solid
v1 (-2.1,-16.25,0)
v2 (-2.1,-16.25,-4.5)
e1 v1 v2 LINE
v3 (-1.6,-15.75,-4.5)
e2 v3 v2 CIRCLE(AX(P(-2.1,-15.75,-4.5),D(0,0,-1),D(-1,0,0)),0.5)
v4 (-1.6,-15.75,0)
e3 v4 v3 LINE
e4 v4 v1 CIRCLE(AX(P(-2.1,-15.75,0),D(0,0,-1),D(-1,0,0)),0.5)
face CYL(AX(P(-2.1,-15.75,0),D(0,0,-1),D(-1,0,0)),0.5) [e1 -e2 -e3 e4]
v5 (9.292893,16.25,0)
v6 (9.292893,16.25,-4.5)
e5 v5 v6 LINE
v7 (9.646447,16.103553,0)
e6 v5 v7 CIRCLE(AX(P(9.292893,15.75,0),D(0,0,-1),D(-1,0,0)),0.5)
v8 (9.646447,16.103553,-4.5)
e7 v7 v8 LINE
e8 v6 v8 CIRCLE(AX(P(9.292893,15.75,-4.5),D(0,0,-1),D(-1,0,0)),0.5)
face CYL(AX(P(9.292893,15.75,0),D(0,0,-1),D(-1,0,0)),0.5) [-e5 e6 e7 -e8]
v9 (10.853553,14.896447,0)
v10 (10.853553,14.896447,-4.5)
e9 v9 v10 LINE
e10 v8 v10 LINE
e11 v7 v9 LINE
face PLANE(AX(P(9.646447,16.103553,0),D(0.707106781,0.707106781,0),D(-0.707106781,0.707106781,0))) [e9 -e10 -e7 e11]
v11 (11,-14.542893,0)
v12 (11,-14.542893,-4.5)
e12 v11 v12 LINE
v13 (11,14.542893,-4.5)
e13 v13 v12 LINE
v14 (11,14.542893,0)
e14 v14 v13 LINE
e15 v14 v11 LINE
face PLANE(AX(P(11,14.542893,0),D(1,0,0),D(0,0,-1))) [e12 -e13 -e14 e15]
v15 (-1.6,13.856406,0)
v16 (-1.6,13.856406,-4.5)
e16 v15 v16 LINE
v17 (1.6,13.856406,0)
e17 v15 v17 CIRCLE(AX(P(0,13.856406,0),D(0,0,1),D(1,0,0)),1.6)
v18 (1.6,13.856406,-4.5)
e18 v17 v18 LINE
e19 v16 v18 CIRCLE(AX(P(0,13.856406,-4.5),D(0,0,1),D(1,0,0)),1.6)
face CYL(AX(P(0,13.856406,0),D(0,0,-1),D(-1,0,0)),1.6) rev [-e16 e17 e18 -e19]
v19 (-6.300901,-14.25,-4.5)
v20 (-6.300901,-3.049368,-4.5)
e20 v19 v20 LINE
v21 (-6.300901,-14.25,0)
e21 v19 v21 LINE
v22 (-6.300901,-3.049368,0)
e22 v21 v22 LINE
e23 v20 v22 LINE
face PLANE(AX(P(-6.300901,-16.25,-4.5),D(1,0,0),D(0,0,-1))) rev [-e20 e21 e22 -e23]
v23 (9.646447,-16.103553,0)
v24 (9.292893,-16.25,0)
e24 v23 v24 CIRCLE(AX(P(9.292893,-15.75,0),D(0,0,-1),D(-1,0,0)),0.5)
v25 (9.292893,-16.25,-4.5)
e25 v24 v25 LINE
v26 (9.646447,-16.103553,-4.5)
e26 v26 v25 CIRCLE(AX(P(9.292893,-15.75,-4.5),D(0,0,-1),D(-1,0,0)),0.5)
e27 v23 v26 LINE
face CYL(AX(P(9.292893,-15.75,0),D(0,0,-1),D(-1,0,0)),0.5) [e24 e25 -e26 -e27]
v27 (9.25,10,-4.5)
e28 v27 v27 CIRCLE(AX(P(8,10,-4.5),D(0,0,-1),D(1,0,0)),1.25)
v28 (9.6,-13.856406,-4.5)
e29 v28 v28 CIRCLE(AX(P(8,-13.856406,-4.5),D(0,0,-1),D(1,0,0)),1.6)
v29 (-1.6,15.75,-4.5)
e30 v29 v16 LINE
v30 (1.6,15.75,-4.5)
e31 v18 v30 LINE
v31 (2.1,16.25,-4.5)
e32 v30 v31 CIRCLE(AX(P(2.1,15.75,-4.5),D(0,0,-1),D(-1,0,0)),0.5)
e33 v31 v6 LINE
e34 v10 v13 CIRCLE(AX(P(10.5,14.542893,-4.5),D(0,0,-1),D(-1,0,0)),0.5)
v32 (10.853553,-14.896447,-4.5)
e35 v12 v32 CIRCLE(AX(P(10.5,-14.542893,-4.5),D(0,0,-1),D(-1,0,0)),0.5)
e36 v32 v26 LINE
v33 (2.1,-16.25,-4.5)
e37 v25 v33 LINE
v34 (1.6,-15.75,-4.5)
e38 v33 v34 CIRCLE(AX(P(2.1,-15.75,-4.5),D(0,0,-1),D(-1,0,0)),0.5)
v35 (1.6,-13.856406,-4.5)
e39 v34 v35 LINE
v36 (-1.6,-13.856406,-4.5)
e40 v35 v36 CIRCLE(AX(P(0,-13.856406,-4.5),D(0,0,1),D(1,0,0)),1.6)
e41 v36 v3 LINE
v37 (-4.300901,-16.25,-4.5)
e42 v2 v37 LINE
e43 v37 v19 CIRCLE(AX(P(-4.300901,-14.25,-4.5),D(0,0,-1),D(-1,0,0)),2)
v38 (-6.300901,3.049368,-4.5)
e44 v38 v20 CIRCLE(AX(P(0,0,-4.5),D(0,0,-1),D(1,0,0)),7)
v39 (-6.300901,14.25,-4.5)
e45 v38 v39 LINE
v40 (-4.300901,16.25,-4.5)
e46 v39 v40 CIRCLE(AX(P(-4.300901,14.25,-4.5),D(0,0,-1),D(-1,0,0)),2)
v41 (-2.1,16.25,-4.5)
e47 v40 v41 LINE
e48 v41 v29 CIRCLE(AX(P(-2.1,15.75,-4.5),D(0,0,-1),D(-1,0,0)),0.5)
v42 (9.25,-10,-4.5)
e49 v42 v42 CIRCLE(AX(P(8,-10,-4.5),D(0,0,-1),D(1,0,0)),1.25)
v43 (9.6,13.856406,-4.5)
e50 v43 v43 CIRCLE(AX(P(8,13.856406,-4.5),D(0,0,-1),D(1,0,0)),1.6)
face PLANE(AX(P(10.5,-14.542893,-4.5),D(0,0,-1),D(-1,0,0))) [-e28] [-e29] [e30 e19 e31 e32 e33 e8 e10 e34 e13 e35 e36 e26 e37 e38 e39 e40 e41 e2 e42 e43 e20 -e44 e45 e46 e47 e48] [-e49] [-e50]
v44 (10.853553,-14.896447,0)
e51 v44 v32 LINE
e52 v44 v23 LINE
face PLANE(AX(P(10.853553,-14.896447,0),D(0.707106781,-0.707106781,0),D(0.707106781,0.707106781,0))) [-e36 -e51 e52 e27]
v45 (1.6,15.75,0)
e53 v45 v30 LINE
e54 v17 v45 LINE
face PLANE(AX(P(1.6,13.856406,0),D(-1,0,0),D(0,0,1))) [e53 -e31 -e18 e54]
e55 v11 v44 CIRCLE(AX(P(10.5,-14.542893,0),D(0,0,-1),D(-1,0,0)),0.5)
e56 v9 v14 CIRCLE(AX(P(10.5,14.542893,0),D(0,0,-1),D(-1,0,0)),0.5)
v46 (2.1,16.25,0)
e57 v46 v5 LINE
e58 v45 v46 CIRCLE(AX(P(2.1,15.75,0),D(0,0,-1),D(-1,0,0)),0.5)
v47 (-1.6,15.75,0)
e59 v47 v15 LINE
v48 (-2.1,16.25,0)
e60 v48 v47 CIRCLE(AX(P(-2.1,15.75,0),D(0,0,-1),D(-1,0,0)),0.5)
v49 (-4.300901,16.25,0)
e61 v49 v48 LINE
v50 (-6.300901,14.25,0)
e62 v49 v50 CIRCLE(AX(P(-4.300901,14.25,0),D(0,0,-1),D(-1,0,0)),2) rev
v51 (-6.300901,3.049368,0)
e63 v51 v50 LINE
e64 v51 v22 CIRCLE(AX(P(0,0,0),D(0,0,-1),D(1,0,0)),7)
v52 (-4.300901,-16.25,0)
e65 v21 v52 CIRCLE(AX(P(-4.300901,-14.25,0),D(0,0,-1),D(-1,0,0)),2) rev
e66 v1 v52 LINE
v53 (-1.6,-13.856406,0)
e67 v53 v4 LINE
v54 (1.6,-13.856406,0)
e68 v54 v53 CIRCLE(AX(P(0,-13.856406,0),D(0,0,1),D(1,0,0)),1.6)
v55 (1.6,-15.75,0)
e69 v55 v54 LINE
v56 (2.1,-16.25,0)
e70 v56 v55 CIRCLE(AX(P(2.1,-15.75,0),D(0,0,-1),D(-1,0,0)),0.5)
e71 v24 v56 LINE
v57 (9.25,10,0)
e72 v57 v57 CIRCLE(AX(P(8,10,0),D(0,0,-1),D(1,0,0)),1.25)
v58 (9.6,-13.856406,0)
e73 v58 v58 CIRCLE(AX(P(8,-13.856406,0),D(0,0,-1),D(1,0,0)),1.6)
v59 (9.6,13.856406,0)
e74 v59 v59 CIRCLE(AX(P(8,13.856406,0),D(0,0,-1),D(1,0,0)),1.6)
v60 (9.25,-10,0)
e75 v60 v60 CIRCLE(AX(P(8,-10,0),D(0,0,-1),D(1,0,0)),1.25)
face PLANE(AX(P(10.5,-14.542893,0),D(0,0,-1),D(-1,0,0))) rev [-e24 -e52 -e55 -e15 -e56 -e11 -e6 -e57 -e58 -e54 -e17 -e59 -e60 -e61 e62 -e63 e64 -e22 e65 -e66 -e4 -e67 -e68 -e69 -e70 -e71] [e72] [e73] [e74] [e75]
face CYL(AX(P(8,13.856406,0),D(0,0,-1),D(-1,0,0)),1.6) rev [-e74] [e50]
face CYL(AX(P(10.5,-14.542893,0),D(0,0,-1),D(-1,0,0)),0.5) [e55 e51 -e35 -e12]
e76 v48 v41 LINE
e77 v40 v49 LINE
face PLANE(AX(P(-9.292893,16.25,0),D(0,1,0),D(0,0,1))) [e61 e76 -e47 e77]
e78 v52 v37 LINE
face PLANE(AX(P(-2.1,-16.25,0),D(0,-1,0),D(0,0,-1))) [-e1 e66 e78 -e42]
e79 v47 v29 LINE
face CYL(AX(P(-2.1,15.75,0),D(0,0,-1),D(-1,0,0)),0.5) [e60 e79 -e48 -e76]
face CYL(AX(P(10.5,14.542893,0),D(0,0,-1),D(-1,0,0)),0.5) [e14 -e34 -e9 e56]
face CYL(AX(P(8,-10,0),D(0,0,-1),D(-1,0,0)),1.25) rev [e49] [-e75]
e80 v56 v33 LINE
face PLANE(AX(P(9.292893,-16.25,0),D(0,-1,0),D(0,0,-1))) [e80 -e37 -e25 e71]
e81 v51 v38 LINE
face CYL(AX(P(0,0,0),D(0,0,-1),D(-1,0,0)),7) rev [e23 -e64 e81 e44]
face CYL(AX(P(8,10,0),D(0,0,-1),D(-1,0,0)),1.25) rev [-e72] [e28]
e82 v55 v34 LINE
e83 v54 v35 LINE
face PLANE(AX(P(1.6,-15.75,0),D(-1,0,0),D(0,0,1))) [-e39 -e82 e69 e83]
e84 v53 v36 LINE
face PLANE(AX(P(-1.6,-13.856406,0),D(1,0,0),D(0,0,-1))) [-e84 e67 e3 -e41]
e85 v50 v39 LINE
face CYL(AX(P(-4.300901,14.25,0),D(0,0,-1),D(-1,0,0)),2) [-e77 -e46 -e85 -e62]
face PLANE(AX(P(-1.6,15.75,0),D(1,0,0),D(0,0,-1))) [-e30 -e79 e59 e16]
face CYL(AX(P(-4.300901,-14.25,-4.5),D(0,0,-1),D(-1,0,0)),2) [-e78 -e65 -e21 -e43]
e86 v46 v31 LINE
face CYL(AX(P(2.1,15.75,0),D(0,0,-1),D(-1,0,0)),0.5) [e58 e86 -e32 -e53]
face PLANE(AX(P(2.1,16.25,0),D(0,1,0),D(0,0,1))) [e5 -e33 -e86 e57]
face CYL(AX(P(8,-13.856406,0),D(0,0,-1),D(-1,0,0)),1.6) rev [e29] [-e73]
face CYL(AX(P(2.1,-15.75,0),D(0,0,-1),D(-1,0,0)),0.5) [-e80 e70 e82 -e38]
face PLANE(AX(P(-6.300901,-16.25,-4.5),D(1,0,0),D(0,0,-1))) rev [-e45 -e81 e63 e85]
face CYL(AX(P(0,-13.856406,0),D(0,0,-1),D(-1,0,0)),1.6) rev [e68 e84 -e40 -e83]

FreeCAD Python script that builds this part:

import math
import FreeCAD as App
import Part
import Sketcher
from FreeCAD import Vector


def edges_at(feature, points):
    """Names of the edges that pass closest to the given points."""
    edges = feature.Shape.Edges
    near = lambda p: min(range(len(edges)), key=lambda i: edges[i].distToShape(Part.Vertex(*p))[0])
    return sorted({f"Edge{near(p) + 1}" for p in points})


def add_polygon(sketch, points):
    """Adds a closed chain of lines whose ends are joined by coincident constraints."""
    first, n = sketch.GeometryCount, len(points)
    for a, b in zip(points, points[1:] + points[:1]):
        sketch.addGeometry(Part.LineSegment(App.Vector(*a, 0), App.Vector(*b, 0)), False)
    for i in range(n):
        sketch.addConstraint(Sketcher.Constraint("Coincident", first + i, 2, first + (i + 1) % n, 1))

doc = App.newDocument("Part")
body = doc.addObject("PartDesign::Body", "Body")

sketch1 = body.newObject("Sketcher::SketchObject", "Sketch")
sketch1.AttachmentSupport = (doc.getObject("XY_Plane"), [""])
sketch1.MapMode = "FlatFace"
sketch1.AttachmentOffset = App.Placement(Vector(0, 0, -4.5), App.Rotation())
sketch1.addGeometry(Part.LineSegment(Vector(10.85, -14.9, 0), Vector(9.65, -16.1, 0)), False)
sketch1.addGeometry(Part.ArcOfCircle(Part.Circle(Vector(9.29, -15.75, 0), Vector(0, 0, 1), 0.5), math.radians(-90), math.radians(-45)), False)
sketch1.addGeometry(Part.LineSegment(Vector(9.29, -16.25, 0), Vector(2.1, -16.25, 0)), False)
sketch1.addGeometry(Part.ArcOfCircle(Part.Circle(Vector(2.1, -15.75, 0), Vector(0, 0, 1), 0.5), math.radians(180), math.radians(270)), False)
sketch1.addGeometry(Part.LineSegment(Vector(1.6, -15.75, 0), Vector(1.6, -13.86, 0)), False)
sketch1.addGeometry(Part.ArcOfCircle(Part.Circle(Vector(0, -13.86, 0), Vector(0, 0, 1), 1.6), math.radians(0), math.radians(180)), False)
sketch1.addGeometry(Part.LineSegment(Vector(-1.6, -13.86, 0), Vector(-1.6, -15.75, 0)), False)
sketch1.addGeometry(Part.ArcOfCircle(Part.Circle(Vector(-2.1, -15.75, 0), Vector(0, 0, 1), 0.5), math.radians(-90), math.radians(0)), False)
sketch1.addGeometry(Part.LineSegment(Vector(-2.1, -16.25, 0), Vector(-9.29, -16.25, 0)), False)
sketch1.addGeometry(Part.ArcOfCircle(Part.Circle(Vector(-9.29, -15.75, 0), Vector(0, 0, 1), 0.5), math.radians(-135), math.radians(-90)), False)
sketch1.addGeometry(Part.LineSegment(Vector(-9.65, -16.1, 0), Vector(-10.85, -14.9, 0)), False)
sketch1.addGeometry(Part.ArcOfCircle(Part.Circle(Vector(-10.5, -14.54, 0), Vector(0, 0, 1), 0.5), math.radians(-180), math.radians(-135)), False)
sketch1.addGeometry(Part.LineSegment(Vector(-11, -14.54, 0), Vector(-11, 14.54, 0)), False)
sketch1.addGeometry(Part.ArcOfCircle(Part.Circle(Vector(-10.5, 14.54, 0), Vector(0, 0, 1), 0.5), math.radians(135), math.radians(180)), False)
sketch1.addGeometry(Part.LineSegment(Vector(-10.85, 14.9, 0), Vector(-9.65, 16.1, 0)), False)
sketch1.addGeometry(Part.ArcOfCircle(Part.Circle(Vector(-9.29, 15.75, 0), Vector(0, 0, 1), 0.5), math.radians(90), math.radians(135)), False)
sketch1.addGeometry(Part.LineSegment(Vector(-9.29, 16.25, 0), Vector(-2.1, 16.25, 0)), False)
sketch1.addGeometry(Part.ArcOfCircle(Part.Circle(Vector(-2.1, 15.75, 0), Vector(0, 0, 1), 0.5), math.radians(0), math.radians(90)), False)
sketch1.addGeometry(Part.LineSegment(Vector(-1.6, 15.75, 0), Vector(-1.6, 13.86, 0)), False)
sketch1.addGeometry(Part.ArcOfCircle(Part.Circle(Vector(0, 13.86, 0), Vector(0, 0, 1), 1.6), math.radians(180), math.radians(360)), False)
sketch1.addGeometry(Part.LineSegment(Vector(1.6, 13.86, 0), Vector(1.6, 15.75, 0)), False)
sketch1.addGeometry(Part.ArcOfCircle(Part.Circle(Vector(2.1, 15.75, 0), Vector(0, 0, 1), 0.5), math.radians(90), math.radians(180)), False)
sketch1.addGeometry(Part.LineSegment(Vector(2.1, 16.25, 0), Vector(9.29, 16.25, 0)), False)
sketch1.addGeometry(Part.ArcOfCircle(Part.Circle(Vector(9.29, 15.75, 0), Vector(0, 0, 1), 0.5), math.radians(45), math.radians(90)), False)
sketch1.addGeometry(Part.LineSegment(Vector(9.65, 16.1, 0), Vector(10.85, 14.9, 0)), False)
sketch1.addGeometry(Part.ArcOfCircle(Part.Circle(Vector(10.5, 14.54, 0), Vector(0, 0, 1), 0.5), math.radians(0), math.radians(45)), False)
sketch1.addGeometry(Part.LineSegment(Vector(11, 14.54, 0), Vector(11, -14.54, 0)), False)
sketch1.addGeometry(Part.ArcOfCircle(Part.Circle(Vector(10.5, -14.54, 0), Vector(0, 0, 1), 0.5), math.radians(-45), math.radians(0)), False)
sketch1.addGeometry(Part.Circle(Vector(8, -13.86, 0), Vector(0, 0, 1), 1.6), False)
sketch1.addGeometry(Part.Circle(Vector(8, -10, 0), Vector(0, 0, 1), 1.25), False)
sketch1.addGeometry(Part.Circle(Vector(-8, -13.86, 0), Vector(0, 0, 1), 1.6), False)
sketch1.addGeometry(Part.Circle(Vector(-8, -10, 0), Vector(0, 0, 1), 1.25), False)
sketch1.addGeometry(Part.Circle(Vector(8, 10, 0), Vector(0, 0, 1), 1.25), False)
sketch1.addGeometry(Part.Circle(Vector(8, 13.86, 0), Vector(0, 0, 1), 1.6), False)
sketch1.addGeometry(Part.Circle(Vector(0, 0, 0), Vector(0, 0, 1), 7), False)
sketch1.addGeometry(Part.Circle(Vector(-8, 10, 0), Vector(0, 0, 1), 1.25), False)
sketch1.addGeometry(Part.Circle(Vector(-8, 13.86, 0), Vector(0, 0, 1), 1.6), False)
sketch1.addConstraint(Sketcher.Constraint("Tangent", 0, 2, 1, 2))
sketch1.addConstraint(Sketcher.Constraint("Tangent", 1, 1, 2, 1))
sketch1.addConstraint(Sketcher.Constraint("Tangent", 2, 2, 3, 2))
sketch1.addConstraint(Sketcher.Constraint("Tangent", 3, 1, 4, 1))
sketch1.addConstraint(Sketcher.Constraint("Tangent", 4, 2, 5, 1))
sketch1.addConstraint(Sketcher.Constraint("Tangent", 5, 2, 6, 1))
sketch1.addConstraint(Sketcher.Constraint("Tangent", 6, 2, 7, 2))
sketch1.addConstraint(Sketcher.Constraint("Tangent", 7, 1, 8, 1))
sketch1.addConstraint(Sketcher.Constraint("Tangent", 8, 2, 9, 2))
sketch1.addConstraint(Sketcher.Constraint("Tangent", 9, 1, 10, 1))
sketch1.addConstraint(Sketcher.Constraint("Tangent", 10, 2, 11, 2))
sketch1.addConstraint(Sketcher.Constraint("Tangent", 11, 1, 12, 1))
sketch1.addConstraint(Sketcher.Constraint("Tangent", 12, 2, 13, 2))
sketch1.addConstraint(Sketcher.Constraint("Tangent", 13, 1, 14, 1))
sketch1.addConstraint(Sketcher.Constraint("Tangent", 14, 2, 15, 2))
sketch1.addConstraint(Sketcher.Constraint("Tangent", 15, 1, 16, 1))
sketch1.addConstraint(Sketcher.Constraint("Tangent", 16, 2, 17, 2))
sketch1.addConstraint(Sketcher.Constraint("Tangent", 17, 1, 18, 1))
sketch1.addConstraint(Sketcher.Constraint("Tangent", 18, 2, 19, 1))
sketch1.addConstraint(Sketcher.Constraint("Tangent", 19, 2, 20, 1))
sketch1.addConstraint(Sketcher.Constraint("Tangent", 20, 2, 21, 2))
sketch1.addConstraint(Sketcher.Constraint("Tangent", 21, 1, 22, 1))
sketch1.addConstraint(Sketcher.Constraint("Tangent", 22, 2, 23, 2))
sketch1.addConstraint(Sketcher.Constraint("Tangent", 23, 1, 24, 1))
sketch1.addConstraint(Sketcher.Constraint("Tangent", 24, 2, 25, 2))
sketch1.addConstraint(Sketcher.Constraint("Tangent", 25, 1, 26, 1))
sketch1.addConstraint(Sketcher.Constraint("Tangent", 26, 2, 27, 2))
sketch1.addConstraint(Sketcher.Constraint("Tangent", 27, 1, 0, 1))
sketch1.addConstraint(Sketcher.Constraint("Horizontal", 2))
sketch1.addConstraint(Sketcher.Constraint("Vertical", 4))
sketch1.addConstraint(Sketcher.Constraint("Vertical", 6))
sketch1.addConstraint(Sketcher.Constraint("Horizontal", 8))
sketch1.addConstraint(Sketcher.Constraint("Vertical", 12))
sketch1.addConstraint(Sketcher.Constraint("Horizontal", 16))
sketch1.addConstraint(Sketcher.Constraint("Vertical", 18))
sketch1.addConstraint(Sketcher.Constraint("Vertical", 20))
sketch1.addConstraint(Sketcher.Constraint("Horizontal", 22))
sketch1.addConstraint(Sketcher.Constraint("Vertical", 26))
sketch1.addConstraint(Sketcher.Constraint("Coincident", 34, 3, -1, 1))
sketch1.addConstraint(Sketcher.Constraint("Equal", 1, 3))
sketch1.addConstraint(Sketcher.Constraint("Equal", 3, 7))
sketch1.addConstraint(Sketcher.Constraint("Equal", 7, 9))
sketch1.addConstraint(Sketcher.Constraint("Equal", 9, 11))
sketch1.addConstraint(Sketcher.Constraint("Equal", 11, 13))
sketch1.addConstraint(Sketcher.Constraint("Equal", 13, 15))
sketch1.addConstraint(Sketcher.Constraint("Equal", 15, 17))
sketch1.addConstraint(Sketcher.Constraint("Equal", 5, 19))
sketch1.addConstraint(Sketcher.Constraint("Equal", 17, 21))
sketch1.addConstraint(Sketcher.Constraint("Equal", 21, 23))
sketch1.addConstraint(Sketcher.Constraint("Equal", 23, 25))
sketch1.addConstraint(Sketcher.Constraint("Equal", 25, 27))
sketch1.addConstraint(Sketcher.Constraint("Equal", 19, 28))
sketch1.addConstraint(Sketcher.Constraint("Equal", 28, 30))
sketch1.addConstraint(Sketcher.Constraint("Equal", 29, 31))
sketch1.addConstraint(Sketcher.Constraint("Equal", 31, 32))
sketch1.addConstraint(Sketcher.Constraint("Equal", 30, 33))
sketch1.addConstraint(Sketcher.Constraint("Equal", 32, 35))
sketch1.addConstraint(Sketcher.Constraint("Equal", 33, 36))
sketch1.addConstraint(Sketcher.Constraint("Symmetric", 1, 3, 15, 3, -1, 1))
sketch1.addConstraint(Sketcher.Constraint("Symmetric", 5, 3, 19, 3, -1, 1))
sketch1.addConstraint(Sketcher.Constraint("Symmetric", 9, 3, 23, 3, -1, 1))
sketch1.addConstraint(Sketcher.Constraint("Symmetric", 11, 3, 25, 3, -1, 1))
sketch1.addConstraint(Sketcher.Constraint("Symmetric", 31, 3, 32, 3, -1, 1))
sketch1.addConstraint(Sketcher.Constraint("Symmetric", 30, 3, 33, 3, -1, 1))
sketch1.addConstraint(Sketcher.Constraint("Symmetric", 29, 3, 35, 3, -1, 1))
sketch1.addConstraint(Sketcher.Constraint("Symmetric", 28, 3, 36, 3, -1, 1))
sketch1.addConstraint(Sketcher.Constraint("Symmetric", 3, 3, 7, 3, -2))
sketch1.addConstraint(Sketcher.Constraint("Symmetric", 28, 3, 30, 3, -2))
sketch1.addConstraint(Sketcher.Constraint("Symmetric", 29, 3, 31, 3, -2))
sketch1.addConstraint(Sketcher.Constraint("Symmetric", 0, 2, 9, 1, -2))
sketch1.addConstraint(Sketcher.Constraint("Perpendicular", 0, 10))
sketch1.addConstraint(Sketcher.Constraint("Perpendicular", 10, 14))
sketch1.addConstraint(Sketcher.Constraint("Horizontal", 5, 3, 28, 3))
sketch1.addConstraint(Sketcher.Constraint("Vertical", 28, 3, 29, 3))
sketch1.addConstraint(Sketcher.Constraint("Diameter", 34, 14.0))
sketch1.addConstraint(Sketcher.Constraint("Diameter", 28, 3.2))
sketch1.addConstraint(Sketcher.Constraint("Diameter", 29, 2.5))
sketch1.addConstraint(Sketcher.Constraint("Radius", 1, 0.5))
sketch1.addConstraint(Sketcher.Constraint("DistanceX", -1, 1, 28, 3, 8.0))
sketch1.addConstraint(Sketcher.Constraint("DistanceY", 29, 3, -1, 1, 10.0))
sketch1.addConstraint(Sketcher.Constraint("DistanceX", 11, 1, -1, 1, 11.0))
sketch1.addConstraint(Sketcher.Constraint("DistanceY", 9, 3, 15, 3, 31.5))
sketch1.addConstraint(Sketcher.Constraint("DistanceY", 5, 3, 13, 3, 28.3993))
sketch1.addConstraint(Sketcher.Constraint("DistanceX", 2, 2, 2, 1, 7.192893))
pad1 = body.newObject("PartDesign::Pad", "Pad")
pad1.Profile = sketch1
pad1.Length = 4.5

sketch2 = body.newObject("Sketcher::SketchObject", "Sketch001")
sketch2.AttachmentSupport = (doc.getObject("XY_Plane"), [""])
sketch2.MapMode = "FlatFace"
add_polygon(sketch2, [(-15, 16), (-15, -16), (-6, -16), (-6, 16)])
sketch2.addConstraint(Sketcher.Constraint("Vertical", 0))
sketch2.addConstraint(Sketcher.Constraint("Horizontal", 1))
sketch2.addConstraint(Sketcher.Constraint("Vertical", 2))
sketch2.addConstraint(Sketcher.Constraint("Horizontal", 3))
sketch2.addConstraint(Sketcher.Constraint("DistanceY", 0, 2, 0, 1, 32.5))
sketch2.addConstraint(Sketcher.Constraint("DistanceY", 0, 2, -1, 1, 16.25))
sketch2.addConstraint(Sketcher.Constraint("DistanceX", 1, 1, 1, 2, 9.0828))
sketch2.addConstraint(Sketcher.Constraint("DistanceX", 0, 2, -1, 1, 15.383701))
pocket1 = body.newObject("PartDesign::Pocket", "Pocket")
pocket1.Profile = sketch2
pocket1.Type = "ThroughAll"
doc.recompute()

fillet = body.newObject("PartDesign::Fillet", "Fillet")
fillet.Base = (pocket1, edges_at(pocket1, [(-6.301, 16.25, -2.25), (-6.301, -16.25, -2.25)]))
fillet.Radius = 2

doc.recompute()
